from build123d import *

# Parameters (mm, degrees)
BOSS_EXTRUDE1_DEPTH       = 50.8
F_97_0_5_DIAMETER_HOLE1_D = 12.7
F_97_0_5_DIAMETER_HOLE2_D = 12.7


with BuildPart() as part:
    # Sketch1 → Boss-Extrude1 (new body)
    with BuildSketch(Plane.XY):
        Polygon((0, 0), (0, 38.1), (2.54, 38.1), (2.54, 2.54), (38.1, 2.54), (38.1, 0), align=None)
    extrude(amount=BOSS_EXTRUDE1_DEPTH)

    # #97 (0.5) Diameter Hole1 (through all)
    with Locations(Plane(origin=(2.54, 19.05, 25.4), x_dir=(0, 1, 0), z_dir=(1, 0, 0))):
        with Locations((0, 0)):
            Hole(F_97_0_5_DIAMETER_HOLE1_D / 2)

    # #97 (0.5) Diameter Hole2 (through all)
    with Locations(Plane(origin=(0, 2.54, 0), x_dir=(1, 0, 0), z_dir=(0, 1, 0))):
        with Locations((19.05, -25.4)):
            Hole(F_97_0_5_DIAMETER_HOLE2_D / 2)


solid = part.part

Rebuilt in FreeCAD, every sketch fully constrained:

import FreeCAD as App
import Part
import Sketcher

V = App.Vector
Q = App.Units.Quantity


def add_polygon(sketch, points):
    """Adds a closed chain of lines whose ends are joined by coincident constraints."""
    first, n = sketch.GeometryCount, len(points)
    for a, b in zip(points, points[1:] + points[:1]):
        sketch.addGeometry(Part.LineSegment(App.Vector(*a, 0), App.Vector(*b, 0)), False)
    for i in range(n):
        sketch.addConstraint(Sketcher.Constraint("Coincident", first + i, 2, first + (i + 1) % n, 1))

doc = App.newDocument("Part")
body = doc.addObject("PartDesign::Body", "Body")

sketch1 = doc.addObject("Sketcher::SketchObject", "Sketch")
body.addObject(sketch1)
sketch1.AttachmentSupport = (doc.XY_Plane, [""])
sketch1.MapMode = "FlatFace"
add_polygon(sketch1, [(0, 38.1), (0, 0), (38.1, 0), (38.1, 2.5), (2.5, 2.5), (2.5, 38.1)])
sketch1.addConstraint([
    Sketcher.Constraint("Vertical", 0),
    Sketcher.Constraint("Horizontal", 1),
    Sketcher.Constraint("Vertical", 2),
    Sketcher.Constraint("Horizontal", 3),
    Sketcher.Constraint("Vertical", 4),
    Sketcher.Constraint("Horizontal", 5),
    Sketcher.Constraint("Coincident", 0, 2, -1, 1),
    Sketcher.Constraint("Equal", 1, 0),
    Sketcher.Constraint("Equal", 5, 2),
    Sketcher.Constraint("DistanceX", 1, 1, 1, 2, Q("1.5 in")),
    Sketcher.Constraint("DistanceX", 3, 2, 3, 1, Q("1.4 in")),
])
pad1 = doc.addObject("PartDesign::Pad", "Pad")
body.addObject(pad1)
pad1.Profile = sketch1
pad1.Length = Q("2 in")

sketch2 = doc.addObject("Sketcher::SketchObject", "Sketch001")
body.addObject(sketch2)
sketch2.AttachmentSupport = (doc.YZ_Plane, [""])
sketch2.MapMode = "FlatFace"
sketch2.AttachmentOffset = App.Placement(V(0, 0, 0.1 * 25.4), App.Rotation())
sketch2.addGeometry(Part.Circle(V(19, 25, 0), V(0, 0, 1), 6), False)
sketch2.addConstraint([
    Sketcher.Constraint("Diameter", 0, Q("0.5 in")),
    Sketcher.Constraint("DistanceY", -1, 1, 0, 3, Q("1 in")),
    Sketcher.Constraint("DistanceX", -1, 1, 0, 3, Q("0.75 in")),
])
doc.recompute()
hole = doc.addObject("PartDesign::Hole", "Hole")
body.addObject(hole)
hole.Profile = sketch2
hole.ThreadType = "None"
hole.Diameter = Q("0.5 in")
hole.DepthType = "ThroughAll"

sketch3 = doc.addObject("Sketcher::SketchObject", "Sketch002")
body.addObject(sketch3)
sketch3.AttachmentSupport = (doc.XZ_Plane, [""])
sketch3.MapMode = "FlatFace"
sketch3.AttachmentOffset = App.Placement(V(0, 0, -0.1 * 25.4), App.Rotation())
sketch3.addGeometry(Part.Circle(V(19, 25, 0), V(0, 0, 1), 6), False)
sketch3.addConstraint([
    Sketcher.Constraint("Diameter", 0, Q("0.5 in")),
    Sketcher.Constraint("DistanceY", -1, 1, 0, 3, Q("1 in")),
    Sketcher.Constraint("DistanceX", -1, 1, 0, 3, Q("0.75 in")),
])
doc.recompute()
hole2 = doc.addObject("PartDesign::Hole", "Hole001")
body.addObject(hole2)
hole2.Profile = sketch3
hole2.ThreadType = "None"
hole2.Diameter = Q("0.5 in")
hole2.DepthType = "ThroughAll"
hole2.Reversed = True

doc.recompute()
